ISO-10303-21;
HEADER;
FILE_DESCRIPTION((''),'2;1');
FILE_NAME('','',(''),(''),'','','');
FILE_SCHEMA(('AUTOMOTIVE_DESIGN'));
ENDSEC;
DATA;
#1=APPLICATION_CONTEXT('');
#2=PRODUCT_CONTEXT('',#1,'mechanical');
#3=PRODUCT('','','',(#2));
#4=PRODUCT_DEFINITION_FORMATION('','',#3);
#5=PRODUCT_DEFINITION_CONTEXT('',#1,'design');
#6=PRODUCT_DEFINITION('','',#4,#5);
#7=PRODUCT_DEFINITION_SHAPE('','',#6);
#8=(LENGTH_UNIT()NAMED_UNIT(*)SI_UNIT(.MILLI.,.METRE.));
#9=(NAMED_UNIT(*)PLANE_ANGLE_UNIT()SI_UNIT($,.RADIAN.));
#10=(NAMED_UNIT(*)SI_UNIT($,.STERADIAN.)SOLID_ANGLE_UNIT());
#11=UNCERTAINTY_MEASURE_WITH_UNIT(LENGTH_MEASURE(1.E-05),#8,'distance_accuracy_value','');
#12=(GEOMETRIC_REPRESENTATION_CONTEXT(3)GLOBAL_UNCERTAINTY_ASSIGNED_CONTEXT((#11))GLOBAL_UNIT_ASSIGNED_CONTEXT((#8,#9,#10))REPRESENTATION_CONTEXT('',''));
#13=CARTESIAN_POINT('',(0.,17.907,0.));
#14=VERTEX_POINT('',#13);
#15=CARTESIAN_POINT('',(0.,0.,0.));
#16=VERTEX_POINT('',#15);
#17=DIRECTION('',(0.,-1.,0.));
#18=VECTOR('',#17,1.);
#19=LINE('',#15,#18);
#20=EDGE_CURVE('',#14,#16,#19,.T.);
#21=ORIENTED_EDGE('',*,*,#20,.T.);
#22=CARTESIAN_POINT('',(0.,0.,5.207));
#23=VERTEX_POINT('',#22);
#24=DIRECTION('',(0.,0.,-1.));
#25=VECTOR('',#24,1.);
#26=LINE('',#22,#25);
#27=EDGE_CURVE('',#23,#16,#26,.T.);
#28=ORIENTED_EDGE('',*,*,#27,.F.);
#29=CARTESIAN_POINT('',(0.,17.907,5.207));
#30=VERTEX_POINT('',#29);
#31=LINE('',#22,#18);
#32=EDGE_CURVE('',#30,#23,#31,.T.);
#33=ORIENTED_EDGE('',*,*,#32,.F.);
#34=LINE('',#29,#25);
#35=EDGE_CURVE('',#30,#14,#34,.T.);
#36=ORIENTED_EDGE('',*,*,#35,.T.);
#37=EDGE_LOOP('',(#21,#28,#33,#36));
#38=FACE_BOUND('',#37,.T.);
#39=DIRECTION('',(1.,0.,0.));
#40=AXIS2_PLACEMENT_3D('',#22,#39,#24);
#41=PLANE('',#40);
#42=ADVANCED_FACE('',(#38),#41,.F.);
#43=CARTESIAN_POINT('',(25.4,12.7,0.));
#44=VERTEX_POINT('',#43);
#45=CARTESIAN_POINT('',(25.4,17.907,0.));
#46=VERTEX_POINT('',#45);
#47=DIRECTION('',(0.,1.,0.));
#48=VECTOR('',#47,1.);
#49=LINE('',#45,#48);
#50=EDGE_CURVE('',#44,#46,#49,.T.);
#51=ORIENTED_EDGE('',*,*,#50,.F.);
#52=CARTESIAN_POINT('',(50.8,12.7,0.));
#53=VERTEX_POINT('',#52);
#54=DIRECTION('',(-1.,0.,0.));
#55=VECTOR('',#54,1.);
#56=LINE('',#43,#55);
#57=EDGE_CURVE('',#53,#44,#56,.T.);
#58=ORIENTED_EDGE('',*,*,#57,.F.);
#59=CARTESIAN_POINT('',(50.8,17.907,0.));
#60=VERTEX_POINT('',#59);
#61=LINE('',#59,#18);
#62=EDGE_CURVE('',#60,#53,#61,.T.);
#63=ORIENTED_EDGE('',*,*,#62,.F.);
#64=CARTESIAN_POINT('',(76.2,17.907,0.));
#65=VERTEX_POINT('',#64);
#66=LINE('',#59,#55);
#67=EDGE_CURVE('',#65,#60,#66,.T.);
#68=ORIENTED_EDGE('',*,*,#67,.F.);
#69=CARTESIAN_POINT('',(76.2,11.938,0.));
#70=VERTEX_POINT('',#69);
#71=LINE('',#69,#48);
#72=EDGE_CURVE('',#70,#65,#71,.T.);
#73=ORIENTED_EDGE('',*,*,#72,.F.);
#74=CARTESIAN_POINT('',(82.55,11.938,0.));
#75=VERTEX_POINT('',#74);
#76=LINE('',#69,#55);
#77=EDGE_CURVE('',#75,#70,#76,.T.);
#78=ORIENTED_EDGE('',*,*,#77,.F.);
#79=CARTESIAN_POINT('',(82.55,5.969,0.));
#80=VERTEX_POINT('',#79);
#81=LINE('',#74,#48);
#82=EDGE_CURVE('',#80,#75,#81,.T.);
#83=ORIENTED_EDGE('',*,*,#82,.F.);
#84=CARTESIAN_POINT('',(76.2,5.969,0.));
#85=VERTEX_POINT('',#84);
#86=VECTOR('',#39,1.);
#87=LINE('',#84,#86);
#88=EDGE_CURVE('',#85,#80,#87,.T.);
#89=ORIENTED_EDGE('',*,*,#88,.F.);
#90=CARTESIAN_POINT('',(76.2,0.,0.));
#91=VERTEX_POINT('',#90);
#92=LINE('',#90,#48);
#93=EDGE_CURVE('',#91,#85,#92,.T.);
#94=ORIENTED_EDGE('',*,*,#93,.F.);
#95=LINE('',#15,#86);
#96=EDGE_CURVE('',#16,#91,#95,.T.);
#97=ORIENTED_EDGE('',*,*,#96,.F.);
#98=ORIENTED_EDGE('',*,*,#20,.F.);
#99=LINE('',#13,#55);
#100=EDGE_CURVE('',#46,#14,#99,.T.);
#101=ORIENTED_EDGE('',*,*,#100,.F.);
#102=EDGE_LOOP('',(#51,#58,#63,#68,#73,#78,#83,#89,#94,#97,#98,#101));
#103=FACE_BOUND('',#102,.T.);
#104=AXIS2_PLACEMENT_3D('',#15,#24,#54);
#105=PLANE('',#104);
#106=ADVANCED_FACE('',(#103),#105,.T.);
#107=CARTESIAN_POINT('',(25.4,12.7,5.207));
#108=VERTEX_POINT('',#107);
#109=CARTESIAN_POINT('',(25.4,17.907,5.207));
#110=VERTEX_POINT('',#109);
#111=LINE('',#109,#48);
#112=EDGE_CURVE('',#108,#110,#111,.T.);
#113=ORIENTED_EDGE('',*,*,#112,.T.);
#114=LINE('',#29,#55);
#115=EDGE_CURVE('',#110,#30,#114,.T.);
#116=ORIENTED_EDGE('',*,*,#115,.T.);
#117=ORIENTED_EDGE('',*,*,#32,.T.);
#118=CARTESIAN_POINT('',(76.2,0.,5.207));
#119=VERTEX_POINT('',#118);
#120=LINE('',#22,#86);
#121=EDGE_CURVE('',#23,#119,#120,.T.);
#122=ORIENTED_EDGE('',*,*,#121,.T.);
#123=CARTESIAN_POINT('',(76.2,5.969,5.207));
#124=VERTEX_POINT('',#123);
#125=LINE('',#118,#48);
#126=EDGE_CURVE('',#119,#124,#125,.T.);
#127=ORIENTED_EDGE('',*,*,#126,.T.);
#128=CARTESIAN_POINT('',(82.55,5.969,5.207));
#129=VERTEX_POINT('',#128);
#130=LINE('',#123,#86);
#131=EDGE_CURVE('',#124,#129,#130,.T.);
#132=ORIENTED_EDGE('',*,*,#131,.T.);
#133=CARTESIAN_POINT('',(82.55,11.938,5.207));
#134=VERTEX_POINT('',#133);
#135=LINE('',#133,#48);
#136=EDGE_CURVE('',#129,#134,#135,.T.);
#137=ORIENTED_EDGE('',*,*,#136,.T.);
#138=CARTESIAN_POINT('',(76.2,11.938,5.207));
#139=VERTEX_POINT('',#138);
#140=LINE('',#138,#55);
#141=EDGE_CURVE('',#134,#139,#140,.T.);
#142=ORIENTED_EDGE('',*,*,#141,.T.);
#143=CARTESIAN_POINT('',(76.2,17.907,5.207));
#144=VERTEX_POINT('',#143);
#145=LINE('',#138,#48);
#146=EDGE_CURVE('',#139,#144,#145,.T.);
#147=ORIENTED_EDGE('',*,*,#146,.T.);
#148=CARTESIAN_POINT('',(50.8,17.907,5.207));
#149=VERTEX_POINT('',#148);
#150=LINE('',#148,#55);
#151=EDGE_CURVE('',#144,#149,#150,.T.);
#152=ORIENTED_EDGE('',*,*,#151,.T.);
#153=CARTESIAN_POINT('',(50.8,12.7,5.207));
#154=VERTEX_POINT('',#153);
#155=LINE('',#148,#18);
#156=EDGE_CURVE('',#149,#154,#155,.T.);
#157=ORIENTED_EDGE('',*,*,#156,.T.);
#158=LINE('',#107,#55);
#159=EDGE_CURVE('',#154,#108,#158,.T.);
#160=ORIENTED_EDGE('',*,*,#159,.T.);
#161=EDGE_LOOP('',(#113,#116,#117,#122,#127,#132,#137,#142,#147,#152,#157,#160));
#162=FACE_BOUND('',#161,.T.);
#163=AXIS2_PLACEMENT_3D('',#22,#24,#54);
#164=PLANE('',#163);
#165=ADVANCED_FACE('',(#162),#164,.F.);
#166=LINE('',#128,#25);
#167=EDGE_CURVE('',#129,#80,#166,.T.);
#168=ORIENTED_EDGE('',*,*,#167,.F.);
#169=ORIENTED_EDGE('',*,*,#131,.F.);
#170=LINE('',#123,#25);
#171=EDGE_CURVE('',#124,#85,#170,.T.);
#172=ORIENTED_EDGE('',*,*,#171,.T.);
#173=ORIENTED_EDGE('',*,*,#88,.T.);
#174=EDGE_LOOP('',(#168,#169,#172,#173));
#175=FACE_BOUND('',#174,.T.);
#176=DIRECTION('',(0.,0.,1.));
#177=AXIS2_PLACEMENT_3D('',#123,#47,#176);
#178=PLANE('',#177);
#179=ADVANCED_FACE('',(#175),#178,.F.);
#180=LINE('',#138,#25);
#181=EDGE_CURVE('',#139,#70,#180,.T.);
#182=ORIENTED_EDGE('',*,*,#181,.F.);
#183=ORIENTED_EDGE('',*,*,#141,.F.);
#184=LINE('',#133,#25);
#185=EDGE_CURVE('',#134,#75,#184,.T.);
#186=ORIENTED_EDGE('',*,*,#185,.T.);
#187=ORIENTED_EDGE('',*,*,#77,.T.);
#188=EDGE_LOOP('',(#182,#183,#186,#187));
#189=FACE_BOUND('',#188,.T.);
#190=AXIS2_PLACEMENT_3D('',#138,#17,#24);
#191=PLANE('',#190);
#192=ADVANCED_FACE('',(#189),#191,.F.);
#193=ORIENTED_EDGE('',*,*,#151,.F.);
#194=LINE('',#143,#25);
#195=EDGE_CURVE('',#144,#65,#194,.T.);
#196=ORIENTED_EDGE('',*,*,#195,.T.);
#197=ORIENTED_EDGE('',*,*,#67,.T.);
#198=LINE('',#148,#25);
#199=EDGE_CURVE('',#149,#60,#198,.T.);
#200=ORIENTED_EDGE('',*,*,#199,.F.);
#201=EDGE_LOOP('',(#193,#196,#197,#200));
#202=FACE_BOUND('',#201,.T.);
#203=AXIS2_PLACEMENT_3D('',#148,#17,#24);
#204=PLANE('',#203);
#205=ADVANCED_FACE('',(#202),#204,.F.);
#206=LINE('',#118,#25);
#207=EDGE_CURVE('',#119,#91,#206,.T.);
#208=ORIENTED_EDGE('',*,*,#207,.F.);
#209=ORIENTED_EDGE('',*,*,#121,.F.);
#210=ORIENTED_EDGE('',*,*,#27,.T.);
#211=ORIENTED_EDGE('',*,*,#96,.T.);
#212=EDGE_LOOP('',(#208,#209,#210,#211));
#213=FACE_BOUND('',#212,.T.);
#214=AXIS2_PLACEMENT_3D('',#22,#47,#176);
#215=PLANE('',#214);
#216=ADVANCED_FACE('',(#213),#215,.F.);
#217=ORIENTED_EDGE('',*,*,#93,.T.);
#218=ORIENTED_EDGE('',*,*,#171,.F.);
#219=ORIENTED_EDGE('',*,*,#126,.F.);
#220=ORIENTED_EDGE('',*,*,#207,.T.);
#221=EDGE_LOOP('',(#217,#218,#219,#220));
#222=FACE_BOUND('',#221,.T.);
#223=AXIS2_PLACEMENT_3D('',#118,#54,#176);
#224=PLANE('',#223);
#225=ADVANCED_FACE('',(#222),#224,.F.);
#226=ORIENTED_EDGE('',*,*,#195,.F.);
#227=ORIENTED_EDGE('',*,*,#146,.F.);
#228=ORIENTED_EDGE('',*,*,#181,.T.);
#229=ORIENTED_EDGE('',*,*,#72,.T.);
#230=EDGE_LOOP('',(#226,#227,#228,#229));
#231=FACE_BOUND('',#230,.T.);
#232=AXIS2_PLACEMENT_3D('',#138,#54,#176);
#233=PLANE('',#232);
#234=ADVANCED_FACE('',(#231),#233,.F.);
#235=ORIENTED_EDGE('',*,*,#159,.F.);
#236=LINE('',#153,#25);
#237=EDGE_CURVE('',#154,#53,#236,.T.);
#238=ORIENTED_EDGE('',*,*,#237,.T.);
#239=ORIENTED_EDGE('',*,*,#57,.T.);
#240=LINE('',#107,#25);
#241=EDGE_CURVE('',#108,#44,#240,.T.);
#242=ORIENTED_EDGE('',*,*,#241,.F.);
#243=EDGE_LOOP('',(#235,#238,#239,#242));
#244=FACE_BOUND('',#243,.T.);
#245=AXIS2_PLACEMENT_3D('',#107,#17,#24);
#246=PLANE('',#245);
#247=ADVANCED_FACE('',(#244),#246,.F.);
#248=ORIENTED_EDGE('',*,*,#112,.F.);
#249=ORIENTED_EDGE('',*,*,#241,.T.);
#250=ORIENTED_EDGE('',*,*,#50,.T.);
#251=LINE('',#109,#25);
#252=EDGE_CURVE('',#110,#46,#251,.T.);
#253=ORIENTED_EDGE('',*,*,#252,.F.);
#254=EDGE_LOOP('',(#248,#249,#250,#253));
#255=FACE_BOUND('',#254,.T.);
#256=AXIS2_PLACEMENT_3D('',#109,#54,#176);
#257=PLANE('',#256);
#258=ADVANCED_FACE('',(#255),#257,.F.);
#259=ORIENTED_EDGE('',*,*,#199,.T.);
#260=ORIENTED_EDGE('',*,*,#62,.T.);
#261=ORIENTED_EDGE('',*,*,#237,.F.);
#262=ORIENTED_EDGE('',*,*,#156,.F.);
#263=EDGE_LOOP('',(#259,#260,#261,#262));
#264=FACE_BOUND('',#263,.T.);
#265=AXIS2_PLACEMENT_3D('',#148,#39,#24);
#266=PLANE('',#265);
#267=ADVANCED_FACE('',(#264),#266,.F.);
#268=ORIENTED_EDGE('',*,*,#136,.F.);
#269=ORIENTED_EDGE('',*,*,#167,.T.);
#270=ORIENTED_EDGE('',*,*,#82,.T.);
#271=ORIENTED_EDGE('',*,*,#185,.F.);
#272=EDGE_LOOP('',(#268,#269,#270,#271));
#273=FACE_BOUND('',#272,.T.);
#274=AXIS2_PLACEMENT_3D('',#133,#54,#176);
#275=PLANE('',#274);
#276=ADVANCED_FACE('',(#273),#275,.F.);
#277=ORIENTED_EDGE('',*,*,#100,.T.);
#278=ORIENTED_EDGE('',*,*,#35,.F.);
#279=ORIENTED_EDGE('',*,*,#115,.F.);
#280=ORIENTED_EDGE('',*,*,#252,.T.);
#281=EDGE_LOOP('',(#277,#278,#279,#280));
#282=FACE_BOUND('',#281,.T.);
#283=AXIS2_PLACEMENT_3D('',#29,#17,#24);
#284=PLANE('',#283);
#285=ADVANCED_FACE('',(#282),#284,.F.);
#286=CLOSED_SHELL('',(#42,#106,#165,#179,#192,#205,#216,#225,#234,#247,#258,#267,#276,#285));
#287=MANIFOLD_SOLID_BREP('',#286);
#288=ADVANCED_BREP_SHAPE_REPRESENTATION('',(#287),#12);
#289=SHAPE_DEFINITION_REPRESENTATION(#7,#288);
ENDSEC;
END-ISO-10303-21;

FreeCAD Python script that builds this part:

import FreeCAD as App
import Part
import Sketcher
from FreeCAD import Vector
Q = App.Units.Quantity

doc = App.newDocument("Part")
params = doc.addObject("Spreadsheet::Sheet", "Params")
for row, (alias, value) in enumerate([
    ("sketch1_width", "1 in"),
    ("sketch1_width2", "0.25 in"),
    ("sketch1_height", "0.205 in"),
    ("pad1_length", "0.205 in"),
], start=1):
    params.set(f"A{row}", alias)
    params.set(f"B{row}", "=" + value)
    params.setAlias(f"B{row}", alias)

body = doc.addObject("PartDesign::Body", "Body")

# Sketch on XY plane
sketch1 = body.newObject("Sketcher::SketchObject", "Sketch")
sketch1.AttachmentSupport = (doc.getObject("XY_Plane"), [""])
sketch1.MapMode = "FlatFace"
sketch1.addGeometry([
    Part.LineSegment(Vector(76, 18, 0), Vector(51, 18, 0)),  # 0
    Part.LineSegment(Vector(51, 18, 0), Vector(51, 13, 0)),  # 1
    Part.LineSegment(Vector(51, 13, 0), Vector(25, 13, 0)),  # 2
    Part.LineSegment(Vector(25, 13, 0), Vector(25, 18, 0)),  # 3
    Part.LineSegment(Vector(25, 18, 0), Vector(0, 18, 0)),  # 4
    Part.LineSegment(Vector(0, 18, 0), Vector(0, 0, 0)),  # 5
    Part.LineSegment(Vector(0, 0, 0), Vector(76, 0, 0)),  # 6
    Part.LineSegment(Vector(76, 0, 0), Vector(76, 6, 0)),  # 7
    Part.LineSegment(Vector(76, 6, 0), Vector(83, 6, 0)),  # 8
    Part.LineSegment(Vector(83, 6, 0), Vector(83, 12, 0)),  # 9
    Part.LineSegment(Vector(83, 12, 0), Vector(76, 12, 0)),  # 10
    Part.LineSegment(Vector(76, 12, 0), Vector(76, 18, 0)),  # 11
], False)
sketch1.addConstraint([
    Sketcher.Constraint("Coincident", 0, 2, 1, 1),
    Sketcher.Constraint("Coincident", 1, 2, 2, 1),
    Sketcher.Constraint("Coincident", 2, 2, 3, 1),
    Sketcher.Constraint("Coincident", 3, 2, 4, 1),
    Sketcher.Constraint("Coincident", 4, 2, 5, 1),
    Sketcher.Constraint("Coincident", 5, 2, 6, 1),
    Sketcher.Constraint("Coincident", 6, 2, 7, 1),
    Sketcher.Constraint("Coincident", 7, 2, 8, 1),
    Sketcher.Constraint("Coincident", 8, 2, 9, 1),
    Sketcher.Constraint("Coincident", 9, 2, 10, 1),
    Sketcher.Constraint("Coincident", 10, 2, 11, 1),
    Sketcher.Constraint("Coincident", 11, 2, 0, 1),
    Sketcher.Constraint("Horizontal", 0),
    Sketcher.Constraint("Vertical", 1),
    Sketcher.Constraint("Horizontal", 2),
    Sketcher.Constraint("Vertical", 3),
    Sketcher.Constraint("Horizontal", 4),
    Sketcher.Constraint("Vertical", 5),
    Sketcher.Constraint("Horizontal", 6),
    Sketcher.Constraint("Vertical", 7),
    Sketcher.Constraint("Horizontal", 8),
    Sketcher.Constraint("Vertical", 9),
    Sketcher.Constraint("Horizontal", 10),
    Sketcher.Constraint("Vertical", 11),
    Sketcher.Constraint("Coincident", 5, 2, -1, 1),
    Sketcher.Constraint("Horizontal", 0, 2, 3, 2),
    Sketcher.Constraint("Vertical", 7, 2, 10, 2),
    Sketcher.Constraint("Equal", 0, 2),
    Sketcher.Constraint("Equal", 2, 4),
    Sketcher.Constraint("Equal", 7, 9),
    Sketcher.Constraint("Equal", 9, 11),
    Sketcher.Constraint("DistanceX", 0, 2, 0, 1, Q("1 in")),
    Sketcher.Constraint("DistanceX", 8, 1, 8, 2, Q("0.25 in")),
    Sketcher.Constraint("DistanceY", -1, 1, 1, 2, Q("0.5 in")),
    Sketcher.Constraint("DistanceY", 1, 2, 1, 1, Q("0.205 in")),
])
sketch1.setExpression("Constraints[31]", "Params.sketch1_width")
sketch1.setExpression("Constraints[32]", "Params.sketch1_width2")
sketch1.setExpression("Constraints[34]", "Params.sketch1_height")
pad1 = body.newObject("PartDesign::Pad", "Pad")
pad1.Profile = sketch1
pad1.setExpression("Length", "Params.pad1_length")

doc.recompute()
